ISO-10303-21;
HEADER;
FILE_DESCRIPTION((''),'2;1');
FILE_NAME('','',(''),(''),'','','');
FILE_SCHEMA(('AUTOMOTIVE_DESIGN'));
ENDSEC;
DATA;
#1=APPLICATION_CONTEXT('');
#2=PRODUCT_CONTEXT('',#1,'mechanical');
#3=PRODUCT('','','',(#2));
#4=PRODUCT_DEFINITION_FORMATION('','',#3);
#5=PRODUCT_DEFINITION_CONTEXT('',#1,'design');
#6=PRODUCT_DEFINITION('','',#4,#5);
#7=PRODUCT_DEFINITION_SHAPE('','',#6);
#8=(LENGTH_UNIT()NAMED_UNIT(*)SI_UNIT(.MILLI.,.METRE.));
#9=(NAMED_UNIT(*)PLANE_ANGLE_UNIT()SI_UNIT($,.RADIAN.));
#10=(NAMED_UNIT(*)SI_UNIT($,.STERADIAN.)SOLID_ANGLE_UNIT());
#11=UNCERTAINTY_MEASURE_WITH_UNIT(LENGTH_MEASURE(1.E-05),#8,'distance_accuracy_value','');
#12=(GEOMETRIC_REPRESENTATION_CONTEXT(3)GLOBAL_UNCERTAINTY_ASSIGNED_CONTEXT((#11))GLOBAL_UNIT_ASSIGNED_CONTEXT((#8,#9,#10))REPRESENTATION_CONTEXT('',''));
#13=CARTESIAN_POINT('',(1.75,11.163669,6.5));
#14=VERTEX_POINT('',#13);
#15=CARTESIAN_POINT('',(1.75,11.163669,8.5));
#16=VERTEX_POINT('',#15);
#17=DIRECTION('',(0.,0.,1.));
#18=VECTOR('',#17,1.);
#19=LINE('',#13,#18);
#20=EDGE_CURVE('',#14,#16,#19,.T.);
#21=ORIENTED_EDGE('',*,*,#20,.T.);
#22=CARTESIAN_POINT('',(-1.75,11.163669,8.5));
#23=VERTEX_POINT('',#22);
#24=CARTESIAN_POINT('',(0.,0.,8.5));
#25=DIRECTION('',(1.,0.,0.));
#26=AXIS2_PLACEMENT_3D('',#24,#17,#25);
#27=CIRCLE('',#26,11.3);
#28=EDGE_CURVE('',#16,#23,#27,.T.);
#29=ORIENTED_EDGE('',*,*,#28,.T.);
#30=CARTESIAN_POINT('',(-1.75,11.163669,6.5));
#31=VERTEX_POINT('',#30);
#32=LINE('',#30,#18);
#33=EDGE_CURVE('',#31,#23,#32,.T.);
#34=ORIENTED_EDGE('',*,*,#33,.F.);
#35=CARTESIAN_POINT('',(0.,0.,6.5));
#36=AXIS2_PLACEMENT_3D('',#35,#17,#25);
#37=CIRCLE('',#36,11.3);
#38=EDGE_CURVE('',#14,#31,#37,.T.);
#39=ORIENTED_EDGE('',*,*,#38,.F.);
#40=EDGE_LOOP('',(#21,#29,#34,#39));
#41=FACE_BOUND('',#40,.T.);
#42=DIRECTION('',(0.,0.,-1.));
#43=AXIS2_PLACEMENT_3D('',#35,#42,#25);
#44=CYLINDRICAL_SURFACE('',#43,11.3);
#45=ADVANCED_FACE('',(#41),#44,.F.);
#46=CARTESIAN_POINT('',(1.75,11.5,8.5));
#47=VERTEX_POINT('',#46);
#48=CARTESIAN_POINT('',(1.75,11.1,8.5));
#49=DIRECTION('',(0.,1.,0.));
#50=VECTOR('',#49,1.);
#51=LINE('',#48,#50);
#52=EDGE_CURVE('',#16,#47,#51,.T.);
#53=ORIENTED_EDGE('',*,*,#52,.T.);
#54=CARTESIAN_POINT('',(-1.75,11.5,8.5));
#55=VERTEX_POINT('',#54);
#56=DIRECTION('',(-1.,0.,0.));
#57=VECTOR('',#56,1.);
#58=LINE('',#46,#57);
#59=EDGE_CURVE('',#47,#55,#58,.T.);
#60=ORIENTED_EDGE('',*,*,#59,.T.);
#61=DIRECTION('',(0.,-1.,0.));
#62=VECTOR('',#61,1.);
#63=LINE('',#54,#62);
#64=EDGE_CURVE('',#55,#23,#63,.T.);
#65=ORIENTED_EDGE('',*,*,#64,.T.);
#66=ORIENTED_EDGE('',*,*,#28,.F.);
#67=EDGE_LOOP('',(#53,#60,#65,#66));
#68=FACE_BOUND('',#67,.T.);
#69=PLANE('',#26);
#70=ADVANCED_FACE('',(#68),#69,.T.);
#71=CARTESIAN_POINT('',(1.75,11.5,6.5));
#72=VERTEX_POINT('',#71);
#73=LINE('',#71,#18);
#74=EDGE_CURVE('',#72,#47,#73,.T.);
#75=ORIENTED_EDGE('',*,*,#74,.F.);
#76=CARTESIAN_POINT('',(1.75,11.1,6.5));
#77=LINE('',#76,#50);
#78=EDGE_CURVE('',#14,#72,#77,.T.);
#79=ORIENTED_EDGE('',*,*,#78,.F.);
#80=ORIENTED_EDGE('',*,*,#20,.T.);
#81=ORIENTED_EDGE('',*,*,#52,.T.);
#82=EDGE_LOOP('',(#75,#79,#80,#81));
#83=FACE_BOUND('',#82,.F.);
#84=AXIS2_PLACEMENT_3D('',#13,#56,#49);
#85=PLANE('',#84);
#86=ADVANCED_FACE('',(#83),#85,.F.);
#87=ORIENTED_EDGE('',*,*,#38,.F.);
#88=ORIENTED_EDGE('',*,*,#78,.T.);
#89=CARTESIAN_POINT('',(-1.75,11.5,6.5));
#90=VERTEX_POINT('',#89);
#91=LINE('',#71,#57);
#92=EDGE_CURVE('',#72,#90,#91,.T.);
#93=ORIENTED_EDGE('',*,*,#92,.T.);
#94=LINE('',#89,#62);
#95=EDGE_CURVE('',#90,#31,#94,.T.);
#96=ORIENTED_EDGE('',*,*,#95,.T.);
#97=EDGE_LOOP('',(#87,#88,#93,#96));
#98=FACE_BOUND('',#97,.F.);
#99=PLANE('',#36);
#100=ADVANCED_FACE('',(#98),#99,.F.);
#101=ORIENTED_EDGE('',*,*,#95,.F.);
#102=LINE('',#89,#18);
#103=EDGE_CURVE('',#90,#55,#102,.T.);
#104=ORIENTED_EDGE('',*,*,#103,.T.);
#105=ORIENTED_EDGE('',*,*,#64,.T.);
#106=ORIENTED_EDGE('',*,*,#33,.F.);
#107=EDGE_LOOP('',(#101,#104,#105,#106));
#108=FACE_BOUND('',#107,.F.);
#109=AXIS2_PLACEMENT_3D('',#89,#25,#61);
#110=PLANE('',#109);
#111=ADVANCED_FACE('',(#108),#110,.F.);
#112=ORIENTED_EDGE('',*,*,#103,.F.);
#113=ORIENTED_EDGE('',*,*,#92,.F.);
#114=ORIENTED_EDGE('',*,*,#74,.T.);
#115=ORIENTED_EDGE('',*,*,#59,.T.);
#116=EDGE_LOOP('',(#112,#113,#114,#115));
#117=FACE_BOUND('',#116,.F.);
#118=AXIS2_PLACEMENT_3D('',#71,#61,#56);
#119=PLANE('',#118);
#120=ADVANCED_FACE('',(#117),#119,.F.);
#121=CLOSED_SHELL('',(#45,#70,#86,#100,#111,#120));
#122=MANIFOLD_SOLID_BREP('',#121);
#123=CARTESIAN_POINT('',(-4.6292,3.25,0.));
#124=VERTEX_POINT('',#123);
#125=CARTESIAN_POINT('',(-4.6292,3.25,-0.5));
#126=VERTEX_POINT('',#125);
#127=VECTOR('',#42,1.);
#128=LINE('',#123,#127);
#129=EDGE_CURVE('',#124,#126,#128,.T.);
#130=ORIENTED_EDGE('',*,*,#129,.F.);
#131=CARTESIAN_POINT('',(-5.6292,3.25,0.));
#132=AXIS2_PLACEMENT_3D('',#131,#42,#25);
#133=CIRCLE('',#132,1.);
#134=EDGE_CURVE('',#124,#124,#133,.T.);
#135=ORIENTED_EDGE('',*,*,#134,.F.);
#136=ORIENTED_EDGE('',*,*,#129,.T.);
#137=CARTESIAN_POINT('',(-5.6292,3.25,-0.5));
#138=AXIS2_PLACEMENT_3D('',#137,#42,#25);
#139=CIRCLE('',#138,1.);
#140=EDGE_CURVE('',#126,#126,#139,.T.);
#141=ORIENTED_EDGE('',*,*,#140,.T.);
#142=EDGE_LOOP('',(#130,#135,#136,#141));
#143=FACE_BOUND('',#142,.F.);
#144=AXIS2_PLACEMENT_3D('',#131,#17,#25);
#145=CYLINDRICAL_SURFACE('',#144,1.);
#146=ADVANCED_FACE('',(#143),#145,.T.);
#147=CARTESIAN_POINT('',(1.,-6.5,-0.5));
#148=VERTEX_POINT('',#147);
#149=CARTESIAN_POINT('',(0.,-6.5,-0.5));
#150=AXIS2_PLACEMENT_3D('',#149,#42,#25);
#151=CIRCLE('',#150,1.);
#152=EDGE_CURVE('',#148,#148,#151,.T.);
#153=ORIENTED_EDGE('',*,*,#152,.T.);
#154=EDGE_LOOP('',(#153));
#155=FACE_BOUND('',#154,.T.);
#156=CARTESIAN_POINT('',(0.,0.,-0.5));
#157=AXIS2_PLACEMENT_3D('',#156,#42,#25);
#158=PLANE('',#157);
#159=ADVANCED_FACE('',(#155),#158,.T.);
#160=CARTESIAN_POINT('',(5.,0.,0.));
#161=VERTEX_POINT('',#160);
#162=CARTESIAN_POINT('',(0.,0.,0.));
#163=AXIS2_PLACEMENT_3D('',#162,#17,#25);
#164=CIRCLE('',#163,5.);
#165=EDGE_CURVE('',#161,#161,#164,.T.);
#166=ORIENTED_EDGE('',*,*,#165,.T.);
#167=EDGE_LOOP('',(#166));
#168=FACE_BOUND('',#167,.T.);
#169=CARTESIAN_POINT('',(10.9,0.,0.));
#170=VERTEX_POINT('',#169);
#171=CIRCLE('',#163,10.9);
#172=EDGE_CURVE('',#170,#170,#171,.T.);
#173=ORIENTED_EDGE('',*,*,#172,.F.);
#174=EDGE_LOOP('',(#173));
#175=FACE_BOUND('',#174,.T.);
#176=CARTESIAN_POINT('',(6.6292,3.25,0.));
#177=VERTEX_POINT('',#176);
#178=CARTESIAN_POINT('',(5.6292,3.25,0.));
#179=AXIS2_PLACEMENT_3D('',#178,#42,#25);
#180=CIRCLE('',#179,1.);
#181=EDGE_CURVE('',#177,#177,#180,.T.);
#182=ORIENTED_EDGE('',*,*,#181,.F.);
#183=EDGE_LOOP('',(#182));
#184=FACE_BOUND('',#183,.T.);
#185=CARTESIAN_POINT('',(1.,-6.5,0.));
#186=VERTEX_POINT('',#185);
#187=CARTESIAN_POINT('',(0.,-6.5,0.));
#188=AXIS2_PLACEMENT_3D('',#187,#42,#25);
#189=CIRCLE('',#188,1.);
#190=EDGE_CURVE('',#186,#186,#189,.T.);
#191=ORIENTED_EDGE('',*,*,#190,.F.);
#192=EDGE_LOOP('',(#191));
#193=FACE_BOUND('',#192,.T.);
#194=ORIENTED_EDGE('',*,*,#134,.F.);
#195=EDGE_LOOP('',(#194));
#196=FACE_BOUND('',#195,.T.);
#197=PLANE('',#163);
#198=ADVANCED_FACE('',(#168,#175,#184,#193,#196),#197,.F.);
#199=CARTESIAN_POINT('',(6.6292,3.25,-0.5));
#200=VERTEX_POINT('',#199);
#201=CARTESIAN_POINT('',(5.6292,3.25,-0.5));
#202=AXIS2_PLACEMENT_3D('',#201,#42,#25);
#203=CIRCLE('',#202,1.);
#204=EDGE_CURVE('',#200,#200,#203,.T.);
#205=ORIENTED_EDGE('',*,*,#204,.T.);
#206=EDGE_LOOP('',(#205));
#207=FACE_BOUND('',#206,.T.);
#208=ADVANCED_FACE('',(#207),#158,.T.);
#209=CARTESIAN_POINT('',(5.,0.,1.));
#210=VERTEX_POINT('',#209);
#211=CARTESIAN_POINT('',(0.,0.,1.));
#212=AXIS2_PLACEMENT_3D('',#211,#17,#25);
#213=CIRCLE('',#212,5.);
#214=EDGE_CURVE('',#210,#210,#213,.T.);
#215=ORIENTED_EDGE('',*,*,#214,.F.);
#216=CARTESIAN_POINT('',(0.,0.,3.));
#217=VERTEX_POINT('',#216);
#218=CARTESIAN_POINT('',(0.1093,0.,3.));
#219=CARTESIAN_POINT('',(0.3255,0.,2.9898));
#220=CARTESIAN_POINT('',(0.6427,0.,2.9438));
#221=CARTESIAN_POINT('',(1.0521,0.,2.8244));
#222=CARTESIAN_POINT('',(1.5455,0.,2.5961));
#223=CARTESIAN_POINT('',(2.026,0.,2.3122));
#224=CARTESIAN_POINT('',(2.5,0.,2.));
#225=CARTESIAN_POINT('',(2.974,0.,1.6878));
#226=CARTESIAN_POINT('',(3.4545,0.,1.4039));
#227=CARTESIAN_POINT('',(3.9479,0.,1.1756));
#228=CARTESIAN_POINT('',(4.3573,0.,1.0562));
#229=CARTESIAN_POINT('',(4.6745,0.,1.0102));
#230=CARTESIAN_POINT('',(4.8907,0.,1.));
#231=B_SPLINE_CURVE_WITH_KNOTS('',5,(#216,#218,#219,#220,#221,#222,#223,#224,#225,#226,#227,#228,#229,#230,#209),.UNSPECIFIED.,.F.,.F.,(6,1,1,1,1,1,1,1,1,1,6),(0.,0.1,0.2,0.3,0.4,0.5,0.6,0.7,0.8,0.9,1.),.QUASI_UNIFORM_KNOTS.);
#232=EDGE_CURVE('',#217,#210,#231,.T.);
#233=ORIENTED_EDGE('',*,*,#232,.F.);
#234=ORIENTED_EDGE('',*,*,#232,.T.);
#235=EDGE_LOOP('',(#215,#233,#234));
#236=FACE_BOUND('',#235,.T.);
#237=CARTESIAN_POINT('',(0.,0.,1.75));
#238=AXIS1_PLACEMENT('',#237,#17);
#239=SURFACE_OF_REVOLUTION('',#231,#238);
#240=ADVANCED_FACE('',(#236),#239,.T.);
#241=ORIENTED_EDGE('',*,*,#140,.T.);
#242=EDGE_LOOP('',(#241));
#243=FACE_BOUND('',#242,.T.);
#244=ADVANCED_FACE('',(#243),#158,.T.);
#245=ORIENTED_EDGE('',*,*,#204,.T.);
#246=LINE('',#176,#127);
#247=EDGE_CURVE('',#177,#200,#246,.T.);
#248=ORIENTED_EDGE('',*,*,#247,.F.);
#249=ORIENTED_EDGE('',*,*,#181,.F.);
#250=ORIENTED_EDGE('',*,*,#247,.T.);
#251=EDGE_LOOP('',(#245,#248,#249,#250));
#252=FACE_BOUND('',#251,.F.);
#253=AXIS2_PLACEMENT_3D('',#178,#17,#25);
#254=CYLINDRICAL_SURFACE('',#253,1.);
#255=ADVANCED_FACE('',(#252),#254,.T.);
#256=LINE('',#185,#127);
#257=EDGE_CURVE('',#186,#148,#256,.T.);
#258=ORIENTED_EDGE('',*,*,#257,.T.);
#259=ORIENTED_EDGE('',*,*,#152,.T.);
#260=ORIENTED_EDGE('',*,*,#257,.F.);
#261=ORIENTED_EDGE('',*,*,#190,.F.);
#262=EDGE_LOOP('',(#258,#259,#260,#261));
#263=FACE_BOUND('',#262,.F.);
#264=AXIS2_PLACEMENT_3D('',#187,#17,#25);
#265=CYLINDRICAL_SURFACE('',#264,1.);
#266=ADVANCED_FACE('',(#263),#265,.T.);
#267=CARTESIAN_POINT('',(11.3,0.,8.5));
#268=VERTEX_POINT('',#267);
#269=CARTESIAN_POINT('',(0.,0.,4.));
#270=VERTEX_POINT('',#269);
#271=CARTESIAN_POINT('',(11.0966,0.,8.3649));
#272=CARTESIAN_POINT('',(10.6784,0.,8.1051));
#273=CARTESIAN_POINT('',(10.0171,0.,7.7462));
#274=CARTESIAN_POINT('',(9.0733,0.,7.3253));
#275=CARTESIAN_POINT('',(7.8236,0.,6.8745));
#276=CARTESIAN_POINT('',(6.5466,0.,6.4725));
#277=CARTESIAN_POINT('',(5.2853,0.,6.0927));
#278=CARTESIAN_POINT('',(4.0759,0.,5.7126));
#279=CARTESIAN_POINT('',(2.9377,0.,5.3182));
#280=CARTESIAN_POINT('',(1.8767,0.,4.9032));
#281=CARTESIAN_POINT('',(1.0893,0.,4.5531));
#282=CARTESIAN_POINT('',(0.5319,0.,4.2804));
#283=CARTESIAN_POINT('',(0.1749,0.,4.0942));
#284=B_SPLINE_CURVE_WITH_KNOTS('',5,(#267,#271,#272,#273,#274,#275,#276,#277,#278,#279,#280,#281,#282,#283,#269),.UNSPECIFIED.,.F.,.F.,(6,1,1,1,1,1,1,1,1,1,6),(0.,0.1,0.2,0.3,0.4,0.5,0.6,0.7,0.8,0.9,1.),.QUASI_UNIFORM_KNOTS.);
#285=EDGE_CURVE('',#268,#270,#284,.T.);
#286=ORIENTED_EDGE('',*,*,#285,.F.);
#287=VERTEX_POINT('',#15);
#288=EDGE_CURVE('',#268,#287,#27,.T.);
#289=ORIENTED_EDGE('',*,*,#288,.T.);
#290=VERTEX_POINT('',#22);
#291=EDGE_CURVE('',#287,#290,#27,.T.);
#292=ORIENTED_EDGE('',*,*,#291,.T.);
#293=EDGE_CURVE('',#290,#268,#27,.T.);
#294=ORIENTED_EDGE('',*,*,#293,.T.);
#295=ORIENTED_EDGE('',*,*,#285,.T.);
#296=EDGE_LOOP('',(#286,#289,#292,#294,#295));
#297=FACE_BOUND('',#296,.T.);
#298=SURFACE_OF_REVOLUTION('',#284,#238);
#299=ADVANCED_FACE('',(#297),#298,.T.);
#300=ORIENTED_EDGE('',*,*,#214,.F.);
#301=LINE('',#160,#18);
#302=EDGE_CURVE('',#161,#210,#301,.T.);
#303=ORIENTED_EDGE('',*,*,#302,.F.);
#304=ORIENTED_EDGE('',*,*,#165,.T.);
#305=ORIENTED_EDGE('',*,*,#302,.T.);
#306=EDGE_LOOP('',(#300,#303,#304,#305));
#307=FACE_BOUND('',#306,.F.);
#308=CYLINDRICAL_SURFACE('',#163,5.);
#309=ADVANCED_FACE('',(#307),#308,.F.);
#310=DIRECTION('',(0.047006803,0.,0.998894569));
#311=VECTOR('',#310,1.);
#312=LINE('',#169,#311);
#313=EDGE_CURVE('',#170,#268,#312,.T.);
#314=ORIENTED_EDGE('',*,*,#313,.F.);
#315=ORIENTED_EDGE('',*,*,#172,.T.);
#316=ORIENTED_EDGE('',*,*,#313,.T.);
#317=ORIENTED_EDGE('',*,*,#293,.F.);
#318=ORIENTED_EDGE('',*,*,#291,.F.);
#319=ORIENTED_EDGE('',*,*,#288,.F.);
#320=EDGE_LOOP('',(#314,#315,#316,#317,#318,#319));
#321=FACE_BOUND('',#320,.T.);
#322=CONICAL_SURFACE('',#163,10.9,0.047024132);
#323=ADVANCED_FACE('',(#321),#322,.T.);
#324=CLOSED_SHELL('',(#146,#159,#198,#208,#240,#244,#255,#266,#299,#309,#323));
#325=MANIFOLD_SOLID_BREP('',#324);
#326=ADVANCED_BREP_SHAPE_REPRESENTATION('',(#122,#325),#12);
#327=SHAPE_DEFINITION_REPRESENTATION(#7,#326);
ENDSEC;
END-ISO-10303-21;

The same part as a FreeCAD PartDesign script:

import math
import FreeCAD as App
import Part
import Sketcher
from FreeCAD import Vector

doc = App.newDocument("Part")
body = doc.addObject("PartDesign::Body", "Body")
body.AllowCompound = True

# Sketch on XZ plane
sketch1 = body.newObject("Sketcher::SketchObject", "Sketch")
sketch1.AttachmentSupport = (doc.getObject("XZ_Plane"), [""])
sketch1.MapMode = "FlatFace"
sketch1.addGeometry([
    Part.LineSegment(Vector(10.9, 0, 0), Vector(5, 0, 0)),  # 0
    Part.LineSegment(Vector(5, 0, 0), Vector(5, 1, 0)),  # 1
    Part.BSplineCurve([Vector(0, 3, 0), Vector(0.1093, 3, 0), Vector(0.3255, 2.9898, 0), Vector(0.6427, 2.9438, 0), Vector(1.0521, 2.8244, 0), Vector(1.5455, 2.5961, 0), Vector(2.026, 2.3122, 0), Vector(2.5, 2, 0), Vector(2.974, 1.6878, 0), Vector(3.4545, 1.4039, 0), Vector(3.9479, 1.1756, 0), Vector(4.3573, 1.0562, 0), Vector(4.6745, 1.0102, 0), Vector(4.8907, 1, 0), Vector(5, 1, 0)], [6, 1, 1, 1, 1, 1, 1, 1, 1, 1, 6], [0, 0.1, 0.2, 0.3, 0.4, 0.5, 0.6, 0.7, 0.8, 0.9, 1], False, 5, [1, 1, 1, 1, 1, 1, 1, 1, 1, 1, 1, 1, 1, 1, 1], False),  # 2
    Part.LineSegment(Vector(0, 3, 0), Vector(0, 4, 0)),  # 3
    Part.BSplineCurve([Vector(11.3, 8.5, 0), Vector(11.0966, 8.3649, 0), Vector(10.6784, 8.1051, 0), Vector(10.0171, 7.7462, 0), Vector(9.0733, 7.3253, 0), Vector(7.8236, 6.8745, 0), Vector(6.5466, 6.4725, 0), Vector(5.2853, 6.0927, 0), Vector(4.0759, 5.7126, 0), Vector(2.9377, 5.3182, 0), Vector(1.8767, 4.9032, 0), Vector(1.0893, 4.5531, 0), Vector(0.5319, 4.2804, 0), Vector(0.1749, 4.0942, 0), Vector(0, 4, 0)], [6, 1, 1, 1, 1, 1, 1, 1, 1, 1, 6], [0, 0.1, 0.2, 0.3, 0.4, 0.5, 0.6, 0.7, 0.8, 0.9, 1], False, 5, [1, 1, 1, 1, 1, 1, 1, 1, 1, 1, 1, 1, 1, 1, 1], False),  # 4
    Part.LineSegment(Vector(11.3, 8.5, 0), Vector(10.9, 0, 0)),  # 5
], False)
sketch1.addConstraint([
    Sketcher.Constraint("Block", 2),
    Sketcher.Constraint("Block", 4),
    Sketcher.Constraint("Coincident", 0, 2, 1, 1),
    Sketcher.Constraint("Coincident", 1, 2, 2, 2),
    Sketcher.Constraint("Coincident", 2, 1, 3, 1),
    Sketcher.Constraint("Coincident", 3, 2, 4, 2),
    Sketcher.Constraint("Coincident", 4, 1, 5, 1),
    Sketcher.Constraint("Coincident", 5, 2, 0, 1),
    Sketcher.Constraint("Horizontal", 0),
    Sketcher.Constraint("Vertical", 1),
    Sketcher.Constraint("PointOnObject", 0, 2, -1),
    Sketcher.Constraint("DistanceX", -1, 1, 5, 2, 10.9),
])
revolution = body.newObject("PartDesign::Revolution", "Revolution")
revolution.Profile = sketch1
revolution.ReferenceAxis = (sketch1, ["V_Axis"])
revolution.Angle = 360

# Sketch on XY plane
sketch2 = body.newObject("Sketcher::SketchObject", "Sketch001")
sketch2.AttachmentSupport = (doc.getObject("XY_Plane"), [""])
sketch2.MapMode = "FlatFace"
sketch2.addGeometry([
    Part.Circle(Vector(0, -6.5, 0), Vector(0, 0, 1), 1),
    Part.Circle(Vector(-5.6292, 3.25, 0), Vector(0, 0, 1), 1),
    Part.Circle(Vector(5.6292, 3.25, 0), Vector(0, 0, 1), 1),
], False)
sketch2.addConstraint([
    Sketcher.Constraint("Equal", 0, 1),
    Sketcher.Constraint("Equal", 1, 2),
    Sketcher.Constraint("Symmetric", 1, 3, 2, 3, -2),
    Sketcher.Constraint("PointOnObject", 0, 3, -2),
    Sketcher.Constraint("Diameter", 0, 2.0),
    Sketcher.Constraint("DistanceY", 0, 3, -1, 1, 6.5),
    Sketcher.Constraint("DistanceY", -1, 1, 1, 3, 3.25),
    Sketcher.Constraint("DistanceX", 1, 3, -1, 1, 5.6292),
])
pad1 = body.newObject("PartDesign::Pad", "Pad")
pad1.Profile = sketch2
pad1.Length = 0.5
pad1.Reversed = True

# Sketch on XY plane
sketch3 = body.newObject("Sketcher::SketchObject", "Sketch002")
sketch3.AttachmentSupport = (doc.getObject("XY_Plane"), [""])
sketch3.MapMode = "FlatFace"
sketch3.AttachmentOffset = App.Placement(Vector(0, 0, 6.5), App.Rotation())
sketch3.addGeometry([
    Part.LineSegment(Vector(-1.75, 11.5, 0), Vector(-1.75, 11.163669, 0)),
    Part.ArcOfCircle(Part.Circle(Vector(0, 0, 0), Vector(0, 0, 1), 11.3), math.radians(81.090902), math.radians(98.909098)),
    Part.LineSegment(Vector(1.75, 11.163669, 0), Vector(1.75, 11.5, 0)),
    Part.LineSegment(Vector(1.75, 11.5, 0), Vector(-1.75, 11.5, 0)),
], False)
sketch3.addConstraint([
    Sketcher.Constraint("Coincident", 0, 2, 1, 2),
    Sketcher.Constraint("Coincident", 1, 1, 2, 1),
    Sketcher.Constraint("Coincident", 2, 2, 3, 1),
    Sketcher.Constraint("Coincident", 3, 2, 0, 1),
    Sketcher.Constraint("Vertical", 0),
    Sketcher.Constraint("Vertical", 2),
    Sketcher.Constraint("Horizontal", 3),
    Sketcher.Constraint("Coincident", 1, 3, -1, 1),
    Sketcher.Constraint("Horizontal", 0, 2, 1, 1),
    Sketcher.Constraint("DistanceX", 3, 2, 3, 1, 3.5),
    Sketcher.Constraint("DistanceY", -1, 1, 2, 2, 11.5),
    Sketcher.Constraint("Radius", 1, 11.3),
])
pad2 = body.newObject("PartDesign::Pad", "Pad001")
pad2.Profile = sketch3
pad2.Length = 2

doc.recompute()
